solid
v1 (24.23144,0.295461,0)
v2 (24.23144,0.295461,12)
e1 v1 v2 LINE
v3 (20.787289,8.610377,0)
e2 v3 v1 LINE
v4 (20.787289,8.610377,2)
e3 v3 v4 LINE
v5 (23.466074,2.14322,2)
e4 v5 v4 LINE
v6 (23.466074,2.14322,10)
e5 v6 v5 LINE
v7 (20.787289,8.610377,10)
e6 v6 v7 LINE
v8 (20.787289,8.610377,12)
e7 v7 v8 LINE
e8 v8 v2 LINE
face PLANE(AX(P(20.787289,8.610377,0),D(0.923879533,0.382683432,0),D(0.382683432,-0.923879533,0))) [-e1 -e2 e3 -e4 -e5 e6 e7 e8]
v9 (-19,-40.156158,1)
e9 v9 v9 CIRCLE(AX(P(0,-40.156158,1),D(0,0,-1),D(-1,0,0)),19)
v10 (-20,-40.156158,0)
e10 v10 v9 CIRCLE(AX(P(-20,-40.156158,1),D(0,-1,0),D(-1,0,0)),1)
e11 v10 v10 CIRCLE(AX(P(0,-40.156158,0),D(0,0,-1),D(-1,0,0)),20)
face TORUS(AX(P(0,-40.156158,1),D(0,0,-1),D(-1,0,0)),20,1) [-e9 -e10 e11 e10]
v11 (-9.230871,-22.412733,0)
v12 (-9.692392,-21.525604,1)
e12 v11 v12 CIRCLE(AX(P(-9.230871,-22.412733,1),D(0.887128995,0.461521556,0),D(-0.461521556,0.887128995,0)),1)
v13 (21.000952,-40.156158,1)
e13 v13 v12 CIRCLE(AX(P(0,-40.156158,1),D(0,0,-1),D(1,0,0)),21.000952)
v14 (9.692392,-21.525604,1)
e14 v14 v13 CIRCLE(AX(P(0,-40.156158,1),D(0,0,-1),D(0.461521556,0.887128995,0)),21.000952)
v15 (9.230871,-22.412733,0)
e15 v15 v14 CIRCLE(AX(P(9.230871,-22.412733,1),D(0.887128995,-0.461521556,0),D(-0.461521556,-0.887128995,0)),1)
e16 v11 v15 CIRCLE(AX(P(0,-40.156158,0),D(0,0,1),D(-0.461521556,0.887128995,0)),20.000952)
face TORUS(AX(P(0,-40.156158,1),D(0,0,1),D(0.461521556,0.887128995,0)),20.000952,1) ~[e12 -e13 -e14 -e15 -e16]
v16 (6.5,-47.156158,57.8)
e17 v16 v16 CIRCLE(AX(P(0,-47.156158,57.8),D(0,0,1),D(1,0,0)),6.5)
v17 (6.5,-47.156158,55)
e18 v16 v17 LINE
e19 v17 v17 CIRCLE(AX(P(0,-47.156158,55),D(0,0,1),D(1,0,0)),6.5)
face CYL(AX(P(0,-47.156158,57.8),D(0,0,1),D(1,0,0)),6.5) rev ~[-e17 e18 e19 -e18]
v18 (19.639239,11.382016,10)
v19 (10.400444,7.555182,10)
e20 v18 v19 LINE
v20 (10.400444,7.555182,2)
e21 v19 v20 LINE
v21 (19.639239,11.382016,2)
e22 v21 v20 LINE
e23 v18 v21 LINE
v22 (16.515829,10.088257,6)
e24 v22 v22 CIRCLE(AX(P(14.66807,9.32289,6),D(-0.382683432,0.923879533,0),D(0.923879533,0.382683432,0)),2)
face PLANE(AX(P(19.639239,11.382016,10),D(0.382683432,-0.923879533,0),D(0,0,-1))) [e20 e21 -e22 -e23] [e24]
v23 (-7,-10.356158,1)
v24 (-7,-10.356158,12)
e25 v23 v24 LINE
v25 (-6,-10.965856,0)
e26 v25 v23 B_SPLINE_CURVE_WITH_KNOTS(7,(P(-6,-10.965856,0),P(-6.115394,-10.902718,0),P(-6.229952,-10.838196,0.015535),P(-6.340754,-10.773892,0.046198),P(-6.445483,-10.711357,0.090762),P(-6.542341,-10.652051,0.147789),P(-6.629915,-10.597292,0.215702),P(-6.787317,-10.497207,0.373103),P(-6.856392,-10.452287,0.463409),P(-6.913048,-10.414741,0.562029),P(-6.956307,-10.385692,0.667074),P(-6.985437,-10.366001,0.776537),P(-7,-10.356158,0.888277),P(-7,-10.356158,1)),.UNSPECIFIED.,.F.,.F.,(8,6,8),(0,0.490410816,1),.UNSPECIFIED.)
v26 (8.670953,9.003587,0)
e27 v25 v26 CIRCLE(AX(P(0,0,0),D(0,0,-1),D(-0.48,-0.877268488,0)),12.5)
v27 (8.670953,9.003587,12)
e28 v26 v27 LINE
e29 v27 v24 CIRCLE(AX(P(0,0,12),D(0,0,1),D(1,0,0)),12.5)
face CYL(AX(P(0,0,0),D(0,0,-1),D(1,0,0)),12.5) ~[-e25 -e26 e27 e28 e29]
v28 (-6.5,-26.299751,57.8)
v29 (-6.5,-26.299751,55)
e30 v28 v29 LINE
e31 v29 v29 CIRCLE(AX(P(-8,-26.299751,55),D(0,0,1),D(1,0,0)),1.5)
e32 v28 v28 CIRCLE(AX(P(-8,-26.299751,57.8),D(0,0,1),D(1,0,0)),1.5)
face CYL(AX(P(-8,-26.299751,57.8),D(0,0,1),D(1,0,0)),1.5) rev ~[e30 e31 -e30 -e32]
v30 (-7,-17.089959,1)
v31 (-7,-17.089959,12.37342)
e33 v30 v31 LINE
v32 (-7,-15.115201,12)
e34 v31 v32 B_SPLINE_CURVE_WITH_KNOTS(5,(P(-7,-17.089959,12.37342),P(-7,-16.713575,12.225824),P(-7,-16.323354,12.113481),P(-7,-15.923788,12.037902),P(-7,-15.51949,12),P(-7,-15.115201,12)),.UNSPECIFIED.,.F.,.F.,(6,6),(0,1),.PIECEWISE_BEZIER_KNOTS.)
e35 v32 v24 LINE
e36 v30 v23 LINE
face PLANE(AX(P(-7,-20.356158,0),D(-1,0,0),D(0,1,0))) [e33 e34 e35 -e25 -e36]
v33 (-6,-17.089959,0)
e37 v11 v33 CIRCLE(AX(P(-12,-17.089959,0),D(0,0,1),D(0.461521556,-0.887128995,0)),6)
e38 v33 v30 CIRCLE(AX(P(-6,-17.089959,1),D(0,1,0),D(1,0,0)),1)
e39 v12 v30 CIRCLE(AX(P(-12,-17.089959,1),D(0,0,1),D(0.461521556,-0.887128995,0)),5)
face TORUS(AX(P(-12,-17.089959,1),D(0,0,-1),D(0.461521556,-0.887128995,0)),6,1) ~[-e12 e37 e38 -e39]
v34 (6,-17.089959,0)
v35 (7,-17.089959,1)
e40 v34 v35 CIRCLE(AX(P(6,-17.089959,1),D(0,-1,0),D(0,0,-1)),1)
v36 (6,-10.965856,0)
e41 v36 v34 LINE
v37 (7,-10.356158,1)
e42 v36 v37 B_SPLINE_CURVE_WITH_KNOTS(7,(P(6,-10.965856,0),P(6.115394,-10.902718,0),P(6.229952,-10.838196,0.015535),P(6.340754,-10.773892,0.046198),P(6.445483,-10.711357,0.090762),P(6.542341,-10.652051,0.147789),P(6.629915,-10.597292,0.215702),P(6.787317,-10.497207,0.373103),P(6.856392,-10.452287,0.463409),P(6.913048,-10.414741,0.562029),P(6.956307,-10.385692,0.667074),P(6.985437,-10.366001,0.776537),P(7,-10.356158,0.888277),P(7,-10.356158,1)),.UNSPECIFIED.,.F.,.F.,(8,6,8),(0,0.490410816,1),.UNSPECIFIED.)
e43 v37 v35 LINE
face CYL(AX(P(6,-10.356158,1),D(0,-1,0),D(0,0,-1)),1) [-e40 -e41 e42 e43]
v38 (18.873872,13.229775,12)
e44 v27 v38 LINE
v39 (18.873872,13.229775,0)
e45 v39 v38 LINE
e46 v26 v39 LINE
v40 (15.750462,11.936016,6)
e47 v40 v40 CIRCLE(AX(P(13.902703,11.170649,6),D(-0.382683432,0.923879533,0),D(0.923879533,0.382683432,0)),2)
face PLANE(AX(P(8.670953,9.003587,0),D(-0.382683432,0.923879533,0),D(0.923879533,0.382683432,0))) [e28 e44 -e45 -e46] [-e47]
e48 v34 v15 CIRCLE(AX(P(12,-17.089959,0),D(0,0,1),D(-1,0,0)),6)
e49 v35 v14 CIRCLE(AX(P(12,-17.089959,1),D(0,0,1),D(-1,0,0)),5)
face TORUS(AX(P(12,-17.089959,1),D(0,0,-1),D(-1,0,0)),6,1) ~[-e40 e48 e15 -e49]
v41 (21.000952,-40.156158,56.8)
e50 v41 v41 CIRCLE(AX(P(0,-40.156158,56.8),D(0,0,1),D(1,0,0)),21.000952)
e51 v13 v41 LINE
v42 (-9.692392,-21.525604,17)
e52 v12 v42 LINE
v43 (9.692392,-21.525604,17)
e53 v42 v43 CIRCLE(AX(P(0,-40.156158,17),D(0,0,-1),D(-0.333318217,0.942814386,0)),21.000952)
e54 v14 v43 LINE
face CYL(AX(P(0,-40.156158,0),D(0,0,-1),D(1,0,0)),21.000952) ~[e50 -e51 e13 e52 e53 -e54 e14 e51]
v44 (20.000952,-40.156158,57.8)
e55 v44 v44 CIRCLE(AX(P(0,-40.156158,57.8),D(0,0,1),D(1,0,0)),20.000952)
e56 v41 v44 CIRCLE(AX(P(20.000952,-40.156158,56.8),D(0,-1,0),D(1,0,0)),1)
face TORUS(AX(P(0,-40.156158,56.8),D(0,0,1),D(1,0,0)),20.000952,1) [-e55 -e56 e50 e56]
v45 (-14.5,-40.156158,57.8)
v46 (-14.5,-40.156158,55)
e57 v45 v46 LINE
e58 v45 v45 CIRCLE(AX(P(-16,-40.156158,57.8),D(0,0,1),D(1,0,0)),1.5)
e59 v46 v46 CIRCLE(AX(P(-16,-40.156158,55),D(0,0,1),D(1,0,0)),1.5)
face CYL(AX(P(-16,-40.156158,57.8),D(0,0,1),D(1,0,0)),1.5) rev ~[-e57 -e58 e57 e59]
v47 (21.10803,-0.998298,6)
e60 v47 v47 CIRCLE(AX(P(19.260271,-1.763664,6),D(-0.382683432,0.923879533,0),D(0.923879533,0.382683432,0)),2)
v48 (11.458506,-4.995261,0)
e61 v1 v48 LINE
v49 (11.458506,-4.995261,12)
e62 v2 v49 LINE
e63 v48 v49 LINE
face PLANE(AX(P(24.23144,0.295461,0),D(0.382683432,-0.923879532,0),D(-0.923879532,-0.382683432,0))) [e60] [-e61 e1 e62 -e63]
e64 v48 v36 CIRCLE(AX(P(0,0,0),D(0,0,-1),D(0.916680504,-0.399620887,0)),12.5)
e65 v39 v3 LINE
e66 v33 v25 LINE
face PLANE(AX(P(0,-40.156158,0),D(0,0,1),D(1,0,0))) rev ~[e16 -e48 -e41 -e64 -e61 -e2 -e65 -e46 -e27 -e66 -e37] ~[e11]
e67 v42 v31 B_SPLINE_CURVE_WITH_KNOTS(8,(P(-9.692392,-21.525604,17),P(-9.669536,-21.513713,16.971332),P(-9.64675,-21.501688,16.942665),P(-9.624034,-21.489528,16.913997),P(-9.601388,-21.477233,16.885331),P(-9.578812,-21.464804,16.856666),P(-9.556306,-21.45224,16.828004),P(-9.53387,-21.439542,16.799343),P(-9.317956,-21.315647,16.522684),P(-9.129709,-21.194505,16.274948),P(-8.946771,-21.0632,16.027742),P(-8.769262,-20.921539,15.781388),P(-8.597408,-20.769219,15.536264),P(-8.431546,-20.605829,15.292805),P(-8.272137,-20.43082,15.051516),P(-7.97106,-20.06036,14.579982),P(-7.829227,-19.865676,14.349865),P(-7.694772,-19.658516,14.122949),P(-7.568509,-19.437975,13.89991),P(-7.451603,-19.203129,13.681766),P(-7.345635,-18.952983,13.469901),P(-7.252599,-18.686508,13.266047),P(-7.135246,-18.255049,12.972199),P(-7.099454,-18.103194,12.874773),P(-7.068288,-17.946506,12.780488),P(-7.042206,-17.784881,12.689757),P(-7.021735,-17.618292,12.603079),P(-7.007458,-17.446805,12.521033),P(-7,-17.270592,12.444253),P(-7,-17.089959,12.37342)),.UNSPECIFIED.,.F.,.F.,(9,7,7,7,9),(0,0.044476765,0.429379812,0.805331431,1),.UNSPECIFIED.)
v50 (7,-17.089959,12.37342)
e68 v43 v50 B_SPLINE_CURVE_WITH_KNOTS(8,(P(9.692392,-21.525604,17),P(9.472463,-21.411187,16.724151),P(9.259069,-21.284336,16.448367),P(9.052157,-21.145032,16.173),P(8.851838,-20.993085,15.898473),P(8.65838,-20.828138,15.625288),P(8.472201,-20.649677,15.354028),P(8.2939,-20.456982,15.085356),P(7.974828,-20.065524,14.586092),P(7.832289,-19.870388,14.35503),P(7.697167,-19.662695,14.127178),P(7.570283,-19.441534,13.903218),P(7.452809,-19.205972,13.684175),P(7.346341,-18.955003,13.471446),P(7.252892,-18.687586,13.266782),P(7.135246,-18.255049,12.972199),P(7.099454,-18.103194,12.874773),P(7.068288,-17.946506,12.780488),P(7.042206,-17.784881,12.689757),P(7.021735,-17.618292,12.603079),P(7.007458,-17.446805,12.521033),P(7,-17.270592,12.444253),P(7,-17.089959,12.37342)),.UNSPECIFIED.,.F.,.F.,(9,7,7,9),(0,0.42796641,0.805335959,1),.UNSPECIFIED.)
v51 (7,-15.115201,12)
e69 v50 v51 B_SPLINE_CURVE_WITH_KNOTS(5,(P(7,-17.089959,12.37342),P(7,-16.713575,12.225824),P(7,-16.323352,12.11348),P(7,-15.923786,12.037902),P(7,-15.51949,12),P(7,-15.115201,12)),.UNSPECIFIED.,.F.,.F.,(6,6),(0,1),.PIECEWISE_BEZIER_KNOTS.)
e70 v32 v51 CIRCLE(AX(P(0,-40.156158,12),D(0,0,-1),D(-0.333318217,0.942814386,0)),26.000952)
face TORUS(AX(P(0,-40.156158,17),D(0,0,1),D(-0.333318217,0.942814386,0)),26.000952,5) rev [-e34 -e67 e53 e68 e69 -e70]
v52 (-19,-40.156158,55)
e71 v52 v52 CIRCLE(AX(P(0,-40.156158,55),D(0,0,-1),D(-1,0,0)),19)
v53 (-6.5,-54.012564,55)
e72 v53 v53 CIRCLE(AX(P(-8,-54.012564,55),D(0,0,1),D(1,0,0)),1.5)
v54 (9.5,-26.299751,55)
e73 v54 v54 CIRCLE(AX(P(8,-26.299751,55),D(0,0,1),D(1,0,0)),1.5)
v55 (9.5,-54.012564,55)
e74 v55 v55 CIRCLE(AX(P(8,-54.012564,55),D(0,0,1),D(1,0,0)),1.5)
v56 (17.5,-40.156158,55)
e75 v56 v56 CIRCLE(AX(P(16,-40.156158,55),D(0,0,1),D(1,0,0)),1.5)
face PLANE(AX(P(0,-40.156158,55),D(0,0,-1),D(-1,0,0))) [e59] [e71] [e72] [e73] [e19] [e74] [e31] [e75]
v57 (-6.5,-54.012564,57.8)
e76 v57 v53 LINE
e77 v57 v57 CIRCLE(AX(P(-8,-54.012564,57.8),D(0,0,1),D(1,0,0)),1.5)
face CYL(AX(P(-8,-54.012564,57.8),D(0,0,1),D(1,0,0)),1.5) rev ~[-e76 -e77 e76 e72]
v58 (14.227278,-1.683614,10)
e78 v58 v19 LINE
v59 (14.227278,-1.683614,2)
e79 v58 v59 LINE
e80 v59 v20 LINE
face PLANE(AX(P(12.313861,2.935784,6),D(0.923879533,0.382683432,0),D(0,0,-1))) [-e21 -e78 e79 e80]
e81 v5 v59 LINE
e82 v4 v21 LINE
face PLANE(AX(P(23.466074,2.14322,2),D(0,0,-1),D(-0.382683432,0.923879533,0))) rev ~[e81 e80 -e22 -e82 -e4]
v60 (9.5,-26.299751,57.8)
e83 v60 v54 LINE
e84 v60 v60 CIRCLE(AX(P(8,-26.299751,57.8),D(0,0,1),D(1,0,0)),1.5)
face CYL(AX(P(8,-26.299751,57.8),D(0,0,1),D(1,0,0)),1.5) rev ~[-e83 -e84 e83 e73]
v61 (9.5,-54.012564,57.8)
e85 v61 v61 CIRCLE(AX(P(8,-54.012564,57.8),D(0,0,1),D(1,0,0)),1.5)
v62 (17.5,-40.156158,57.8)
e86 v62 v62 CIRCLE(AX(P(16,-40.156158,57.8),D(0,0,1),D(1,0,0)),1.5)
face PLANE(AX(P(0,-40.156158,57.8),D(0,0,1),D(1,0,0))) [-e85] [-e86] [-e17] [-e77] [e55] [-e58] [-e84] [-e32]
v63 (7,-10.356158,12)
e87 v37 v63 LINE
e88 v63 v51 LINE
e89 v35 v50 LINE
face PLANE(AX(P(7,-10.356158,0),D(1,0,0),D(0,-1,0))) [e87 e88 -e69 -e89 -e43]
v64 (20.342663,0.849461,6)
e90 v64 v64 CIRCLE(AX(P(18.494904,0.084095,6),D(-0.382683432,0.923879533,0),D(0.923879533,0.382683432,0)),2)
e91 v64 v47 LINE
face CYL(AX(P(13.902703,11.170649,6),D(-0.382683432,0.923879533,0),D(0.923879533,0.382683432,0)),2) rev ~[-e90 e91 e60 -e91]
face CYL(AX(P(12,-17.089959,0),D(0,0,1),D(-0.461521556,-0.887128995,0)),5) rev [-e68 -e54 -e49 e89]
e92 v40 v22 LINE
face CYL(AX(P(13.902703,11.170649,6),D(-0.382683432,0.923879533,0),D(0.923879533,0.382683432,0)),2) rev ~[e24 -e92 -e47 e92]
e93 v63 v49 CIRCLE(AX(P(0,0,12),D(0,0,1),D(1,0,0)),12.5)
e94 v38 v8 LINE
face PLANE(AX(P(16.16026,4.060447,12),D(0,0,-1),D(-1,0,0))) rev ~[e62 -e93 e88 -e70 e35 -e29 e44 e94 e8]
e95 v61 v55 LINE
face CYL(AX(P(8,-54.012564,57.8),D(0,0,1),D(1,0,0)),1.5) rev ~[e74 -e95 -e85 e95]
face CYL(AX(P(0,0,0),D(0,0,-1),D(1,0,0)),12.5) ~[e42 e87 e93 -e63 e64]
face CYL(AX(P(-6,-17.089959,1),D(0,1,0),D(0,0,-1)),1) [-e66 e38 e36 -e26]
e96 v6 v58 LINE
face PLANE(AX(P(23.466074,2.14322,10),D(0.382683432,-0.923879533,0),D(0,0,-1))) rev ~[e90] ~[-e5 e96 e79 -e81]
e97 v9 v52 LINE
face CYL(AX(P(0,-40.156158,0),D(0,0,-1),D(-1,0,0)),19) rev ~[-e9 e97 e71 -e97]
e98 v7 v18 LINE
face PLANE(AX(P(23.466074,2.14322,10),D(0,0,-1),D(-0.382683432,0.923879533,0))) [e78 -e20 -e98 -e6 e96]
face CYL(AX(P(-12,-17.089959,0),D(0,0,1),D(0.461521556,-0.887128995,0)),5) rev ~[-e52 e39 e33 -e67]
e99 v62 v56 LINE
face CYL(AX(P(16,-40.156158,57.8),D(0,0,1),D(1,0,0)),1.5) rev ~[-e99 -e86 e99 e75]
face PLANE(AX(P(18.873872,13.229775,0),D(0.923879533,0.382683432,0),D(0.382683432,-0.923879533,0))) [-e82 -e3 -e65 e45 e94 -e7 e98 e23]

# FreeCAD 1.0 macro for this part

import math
import FreeCAD as App
import Part
import Sketcher

V = App.Vector
Q = App.Units.Quantity


def edges_at(feature, points):
    """Names of the edges that pass closest to the given points."""
    edges = feature.Shape.Edges
    near = lambda p: min(range(len(edges)), key=lambda i: edges[i].distToShape(Part.Vertex(*p))[0])
    return sorted({f"Edge{near(p) + 1}" for p in points})


def add_polygon(sketch, points):
    """Adds a closed chain of lines whose ends are joined by coincident constraints."""
    first, n = sketch.GeometryCount, len(points)
    for a, b in zip(points, points[1:] + points[:1]):
        sketch.addGeometry(Part.LineSegment(App.Vector(*a, 0), App.Vector(*b, 0)), False)
    for i in range(n):
        sketch.addConstraint(Sketcher.Constraint("Coincident", first + i, 2, first + (i + 1) % n, 1))

doc = App.newDocument("Part")
params = doc.addObject("Spreadsheet::Sheet", "Params")
for row, (alias, value) in enumerate([
    ("sketch1_diameter", "25 mm"),
    ("pad1_length", "12 mm"),
    ("sketch2_radius", "12.5 mm"),
    ("sketch2_width", "14 mm"),
    ("sketch2_height", "10 mm"),
    ("sketch2_length", "9 mm"),
    ("sketch2_length2", "5 mm"),
    ("pad2_length", "12 mm"),
    ("sketch3_width", "8 mm"),
    ("sketch3_height", "10 mm"),
    ("pocket1_length", "10 mm"),
    ("sketch4_diameter", "4 mm"),
    ("pad3_length", "57.8 mm"),
    ("sketch6_diameter", "38 mm"),
    ("pocket3_length", "55 mm"),
    ("sketch7_diameter", "13 mm"),
    ("sketch7_diameter2", "3 mm"),
    ("fillet_radius", "5 mm"),
    ("fillet2_radius", "1 mm"),
], start=1):
    params.set(f"A{row}", alias)
    params.set(f"B{row}", "=" + value)
    params.setAlias(f"B{row}", alias)

body = doc.addObject("PartDesign::Body", "Body")

# Sketch on XY plane
sketch1 = body.newObject("Sketcher::SketchObject", "Sketch")
sketch1.AttachmentSupport = (doc.getObject("XY_Plane"), [""])
sketch1.MapMode = "FlatFace"
sketch1.addGeometry(Part.Circle(V(0, 0, 0), V(0, 0, 1), 12), False)
sketch1.addConstraint([
    Sketcher.Constraint("Coincident", 0, 3, -1, 1),
    Sketcher.Constraint("Diameter", 0, Q("25 mm")),
])
sketch1.setExpression("Constraints[1]", "Params.sketch1_diameter")
pad1 = body.newObject("PartDesign::Pad", "Pad")
pad1.Profile = sketch1
pad1.setExpression("Length", "Params.pad1_length")

# Sketch on XY plane
sketch2 = body.newObject("Sketcher::SketchObject", "Sketch001")
sketch2.AttachmentSupport = (doc.getObject("XY_Plane"), [""])
sketch2.MapMode = "FlatFace"
sketch2.addGeometry([
    Part.LineSegment(V(11, -5, 0), V(24, 0, 0)),  # 0
    Part.LineSegment(V(24, 0, 0), V(21, 9, 0)),  # 1
    Part.LineSegment(V(21, 9, 0), V(19, 13, 0)),  # 2
    Part.LineSegment(V(19, 13, 0), V(9, 9, 0)),  # 3
    Part.ArcOfCircle(Part.Circle(V(0, 0, 0), V(0, 0, 1), 12), math.radians(-24), math.radians(46)),  # 4
    Part.LineSegment(V(7, -20, 0), V(7, -10, 0)),  # 5
    Part.ArcOfCircle(Part.Circle(V(0, 0, 0), V(0, 0, 1), 13), math.radians(-124), math.radians(-56)),  # 6
    Part.LineSegment(V(-7, -10, 0), V(-7, -20, 0)),  # 7
    Part.LineSegment(V(-7, -20, 0), V(7, -20, 0)),  # 8
], False)
sketch2.addConstraint([
    Sketcher.Constraint("Coincident", 0, 2, 1, 1),
    Sketcher.Constraint("Coincident", 1, 2, 2, 1),
    Sketcher.Constraint("Coincident", 2, 2, 3, 1),
    Sketcher.Constraint("Coincident", 3, 2, 4, 2),
    Sketcher.Constraint("Coincident", 4, 1, 0, 1),
    Sketcher.Constraint("Coincident", 5, 2, 6, 2),
    Sketcher.Constraint("Coincident", 6, 1, 7, 1),
    Sketcher.Constraint("Coincident", 7, 2, 8, 1),
    Sketcher.Constraint("Coincident", 8, 2, 5, 1),
    Sketcher.Constraint("Vertical", 5),
    Sketcher.Constraint("Vertical", 7),
    Sketcher.Constraint("Horizontal", 8),
    Sketcher.Constraint("Coincident", 4, 3, -1, 1),
    Sketcher.Constraint("Coincident", 6, 3, -1, 1),
    Sketcher.Constraint("Equal", 4, 6),
    Sketcher.Constraint("Perpendicular", 0, 1),
    Sketcher.Constraint("Parallel", 1, 2),
    Sketcher.Constraint("Perpendicular", 2, 3),
    Sketcher.Constraint("Horizontal", 5, 2, 6, 1),
    Sketcher.Constraint("Radius", 4, Q("12.5 mm")),
    Sketcher.Constraint("DistanceX", 8, 1, 8, 2, Q("14 mm")),
    Sketcher.Constraint("DistanceY", 5, 1, 5, 2, Q("10 mm")),
    Sketcher.Constraint("Distance", 1, Q("9 mm")),
    Sketcher.Constraint("Distance", 2, Q("5 mm")),
    Sketcher.Constraint("Angle", 0, Q("22.5 deg")),
    Sketcher.Constraint("Distance", 3, Q("11.043561 mm")),
    Sketcher.Constraint("DistanceX", -1, 1, 0, 2, Q("24.23144 mm")),
])
sketch2.setExpression("Constraints[19]", "Params.sketch2_radius")
sketch2.setExpression("Constraints[20]", "Params.sketch2_width")
sketch2.setExpression("Constraints[21]", "Params.sketch2_height")
sketch2.setExpression("Constraints[22]", "Params.sketch2_length")
sketch2.setExpression("Constraints[23]", "Params.sketch2_length2")
pad2 = body.newObject("PartDesign::Pad", "Pad001")
pad2.Profile = sketch2
pad2.setExpression("Length", "Params.pad2_length")

# Sketch on an angled plane
sketch3 = body.newObject("Sketcher::SketchObject", "Sketch002")
sketch3.Placement = App.Placement(V(20.787289, 8.610377, 0), App.Rotation(V(0, 0, -1), V(-0.382683432, 0.923879533, 0), V(0.923879533, 0.382683432, 0), "ZXY"))
add_polygon(sketch3, [(-10, 3), (-10, -7), (-2, -7), (-2, 3)])  # lines 0-3
sketch3.addConstraint([
    Sketcher.Constraint("Vertical", 0),
    Sketcher.Constraint("Horizontal", 1),
    Sketcher.Constraint("Vertical", 2),
    Sketcher.Constraint("Horizontal", 3),
    Sketcher.Constraint("DistanceX", 1, 1, 1, 2, Q("8 mm")),
    Sketcher.Constraint("DistanceY", 0, 2, 0, 1, Q("10 mm")),
    Sketcher.Constraint("DistanceX", 0, 2, -1, 1, Q("10 mm")),
    Sketcher.Constraint("DistanceY", 0, 2, -1, 1, Q("7 mm")),
])
sketch3.setExpression("Constraints[8]", "Params.sketch3_width")
sketch3.setExpression("Constraints[9]", "Params.sketch3_height")
pocket1 = body.newObject("PartDesign::Pocket", "Pocket")
pocket1.Profile = sketch3
pocket1.setExpression("Length", "Params.pocket1_length")

# Sketch on an angled plane
sketch4 = body.newObject("Sketcher::SketchObject", "Sketch003")
sketch4.Placement = App.Placement(V(-1.913417, 4.619398, 0), App.Rotation(V(0.923879533, 0.382683432, 0), V(0, 0, -1.000000001), V(-0.382683432, 0.923879533, 0), "ZXY"))
sketch4.addGeometry(Part.Circle(V(17.1, -6, 0), V(0, 0, 1), 2), False)
sketch4.addConstraint([
    Sketcher.Constraint("Diameter", 0, Q("4 mm")),
    Sketcher.Constraint("DistanceY", 0, 3, -1, 1, Q("6 mm")),
    Sketcher.Constraint("DistanceX", -1, 1, 0, 3, Q("17.119245 mm")),
])
sketch4.setExpression("Constraints[0]", "Params.sketch4_diameter")
pocket2 = body.newObject("PartDesign::Pocket", "Pocket001")
pocket2.Profile = sketch4
pocket2.Type = "ThroughAll"

# Sketch on XY plane
sketch5 = body.newObject("Sketcher::SketchObject", "Sketch004")
sketch5.AttachmentSupport = (doc.getObject("XY_Plane"), [""])
sketch5.MapMode = "FlatFace"
sketch5.addGeometry(Part.Circle(V(0, -40, 0), V(0, 0, 1), 21), False)
sketch5.addConstraint([
    Sketcher.Constraint("PointOnObject", 0, 3, -2),
    Sketcher.Constraint("Diameter", 0, Q("42.001905 mm")),
    Sketcher.Constraint("DistanceY", 0, 3, -1, 1, Q("40.156158 mm")),
])
pad3 = body.newObject("PartDesign::Pad", "Pad002")
pad3.Profile = sketch5
pad3.setExpression("Length", "Params.pad3_length")

# Sketch on XY plane
sketch6 = body.newObject("Sketcher::SketchObject", "Sketch005")
sketch6.AttachmentSupport = (doc.getObject("XY_Plane"), [""])
sketch6.MapMode = "FlatFace"
sketch6.addGeometry(Part.Circle(V(0, -40, 0), V(0, 0, 1), 19), False)
sketch6.addConstraint([
    Sketcher.Constraint("PointOnObject", 0, 3, -2),
    Sketcher.Constraint("Diameter", 0, Q("38 mm")),
    Sketcher.Constraint("DistanceY", 0, 3, -1, 1, Q("40.156158 mm")),
])
sketch6.setExpression("Constraints[1]", "Params.sketch6_diameter")
pocket3 = body.newObject("PartDesign::Pocket", "Pocket002")
pocket3.Profile = sketch6
pocket3.setExpression("Length", "Params.pocket3_length")
pocket3.Reversed = True

# Sketch on XY plane
sketch7 = body.newObject("Sketcher::SketchObject", "Sketch006")
sketch7.AttachmentSupport = (doc.getObject("XY_Plane"), [""])
sketch7.MapMode = "FlatFace"
sketch7.AttachmentOffset = App.Placement(V(0, 0, 57.8), App.Rotation())
sketch7.addGeometry([
    Part.Circle(V(0, -47.2, 0), V(0, 0, 1), 6.5),  # 0
    Part.Circle(V(-16, -40.2, 0), V(0, 0, 1), 1.5),  # 1
    Part.Circle(V(-8, -54, 0), V(0, 0, 1), 1.5),  # 2
    Part.Circle(V(8, -54, 0), V(0, 0, 1), 1.5),  # 3
    Part.Circle(V(16, -40.2, 0), V(0, 0, 1), 1.5),  # 4
    Part.Circle(V(8, -26.3, 0), V(0, 0, 1), 1.5),  # 5
    Part.Circle(V(-8, -26.3, 0), V(0, 0, 1), 1.5),  # 6
], False)
sketch7.addConstraint([
    Sketcher.Constraint("Equal", 1, 2),
    Sketcher.Constraint("Equal", 2, 3),
    Sketcher.Constraint("Equal", 3, 4),
    Sketcher.Constraint("Equal", 4, 5),
    Sketcher.Constraint("Equal", 5, 6),
    Sketcher.Constraint("Symmetric", 2, 3, 3, 3, -2),
    Sketcher.Constraint("Symmetric", 1, 3, 4, 3, -2),
    Sketcher.Constraint("Symmetric", 5, 3, 6, 3, -2),
    Sketcher.Constraint("PointOnObject", 0, 3, -2),
    Sketcher.Constraint("Vertical", 3, 3, 5, 3),
    Sketcher.Constraint("Diameter", 0, Q("13 mm")),
    Sketcher.Constraint("Diameter", 1, Q("3 mm")),
    Sketcher.Constraint("DistanceX", 1, 3, -1, 1, Q("16 mm")),
    Sketcher.Constraint("DistanceX", 2, 3, -1, 1, Q("8 mm")),
    Sketcher.Constraint("DistanceY", 0, 3, 1, 3, Q("7 mm")),
    Sketcher.Constraint("DistanceY", 5, 3, -1, 1, Q("26.299751 mm")),
    Sketcher.Constraint("DistanceY", 0, 3, -1, 1, Q("47.156158 mm")),
    Sketcher.Constraint("DistanceY", 2, 3, -1, 1, Q("54.012564 mm")),
])
sketch7.setExpression("Constraints[10]", "Params.sketch7_diameter")
sketch7.setExpression("Constraints[11]", "Params.sketch7_diameter2")
pocket4 = body.newObject("PartDesign::Pocket", "Pocket003")
pocket4.Profile = sketch7
pocket4.Type = "ThroughAll"
doc.recompute()

fillet = body.newObject("PartDesign::Fillet", "Fillet")
fillet.Base = (pocket4, edges_at(pocket4, [(-7, -20.356, 6), (7, -20.356, 6), (0, -19.155, 12)]))
fillet.setExpression("Radius", "Params.fillet_radius")
doc.recompute()

fillet2 = body.newObject("PartDesign::Fillet", "Fillet001")
fillet2.Base = (fillet, edges_at(fillet, [
    (7, -13.723, 0),
    (-10.897, -58.109, 0),
    (7.726, -19.684, 0),
    (-7.726, -19.684, 0),
    (-7, -13.723, 0),
    (-21.001, -40.156, 57.8),
    (19, -40.156, 0),
]))
fillet2.setExpression("Radius", "Params.fillet2_radius")

doc.recompute()
